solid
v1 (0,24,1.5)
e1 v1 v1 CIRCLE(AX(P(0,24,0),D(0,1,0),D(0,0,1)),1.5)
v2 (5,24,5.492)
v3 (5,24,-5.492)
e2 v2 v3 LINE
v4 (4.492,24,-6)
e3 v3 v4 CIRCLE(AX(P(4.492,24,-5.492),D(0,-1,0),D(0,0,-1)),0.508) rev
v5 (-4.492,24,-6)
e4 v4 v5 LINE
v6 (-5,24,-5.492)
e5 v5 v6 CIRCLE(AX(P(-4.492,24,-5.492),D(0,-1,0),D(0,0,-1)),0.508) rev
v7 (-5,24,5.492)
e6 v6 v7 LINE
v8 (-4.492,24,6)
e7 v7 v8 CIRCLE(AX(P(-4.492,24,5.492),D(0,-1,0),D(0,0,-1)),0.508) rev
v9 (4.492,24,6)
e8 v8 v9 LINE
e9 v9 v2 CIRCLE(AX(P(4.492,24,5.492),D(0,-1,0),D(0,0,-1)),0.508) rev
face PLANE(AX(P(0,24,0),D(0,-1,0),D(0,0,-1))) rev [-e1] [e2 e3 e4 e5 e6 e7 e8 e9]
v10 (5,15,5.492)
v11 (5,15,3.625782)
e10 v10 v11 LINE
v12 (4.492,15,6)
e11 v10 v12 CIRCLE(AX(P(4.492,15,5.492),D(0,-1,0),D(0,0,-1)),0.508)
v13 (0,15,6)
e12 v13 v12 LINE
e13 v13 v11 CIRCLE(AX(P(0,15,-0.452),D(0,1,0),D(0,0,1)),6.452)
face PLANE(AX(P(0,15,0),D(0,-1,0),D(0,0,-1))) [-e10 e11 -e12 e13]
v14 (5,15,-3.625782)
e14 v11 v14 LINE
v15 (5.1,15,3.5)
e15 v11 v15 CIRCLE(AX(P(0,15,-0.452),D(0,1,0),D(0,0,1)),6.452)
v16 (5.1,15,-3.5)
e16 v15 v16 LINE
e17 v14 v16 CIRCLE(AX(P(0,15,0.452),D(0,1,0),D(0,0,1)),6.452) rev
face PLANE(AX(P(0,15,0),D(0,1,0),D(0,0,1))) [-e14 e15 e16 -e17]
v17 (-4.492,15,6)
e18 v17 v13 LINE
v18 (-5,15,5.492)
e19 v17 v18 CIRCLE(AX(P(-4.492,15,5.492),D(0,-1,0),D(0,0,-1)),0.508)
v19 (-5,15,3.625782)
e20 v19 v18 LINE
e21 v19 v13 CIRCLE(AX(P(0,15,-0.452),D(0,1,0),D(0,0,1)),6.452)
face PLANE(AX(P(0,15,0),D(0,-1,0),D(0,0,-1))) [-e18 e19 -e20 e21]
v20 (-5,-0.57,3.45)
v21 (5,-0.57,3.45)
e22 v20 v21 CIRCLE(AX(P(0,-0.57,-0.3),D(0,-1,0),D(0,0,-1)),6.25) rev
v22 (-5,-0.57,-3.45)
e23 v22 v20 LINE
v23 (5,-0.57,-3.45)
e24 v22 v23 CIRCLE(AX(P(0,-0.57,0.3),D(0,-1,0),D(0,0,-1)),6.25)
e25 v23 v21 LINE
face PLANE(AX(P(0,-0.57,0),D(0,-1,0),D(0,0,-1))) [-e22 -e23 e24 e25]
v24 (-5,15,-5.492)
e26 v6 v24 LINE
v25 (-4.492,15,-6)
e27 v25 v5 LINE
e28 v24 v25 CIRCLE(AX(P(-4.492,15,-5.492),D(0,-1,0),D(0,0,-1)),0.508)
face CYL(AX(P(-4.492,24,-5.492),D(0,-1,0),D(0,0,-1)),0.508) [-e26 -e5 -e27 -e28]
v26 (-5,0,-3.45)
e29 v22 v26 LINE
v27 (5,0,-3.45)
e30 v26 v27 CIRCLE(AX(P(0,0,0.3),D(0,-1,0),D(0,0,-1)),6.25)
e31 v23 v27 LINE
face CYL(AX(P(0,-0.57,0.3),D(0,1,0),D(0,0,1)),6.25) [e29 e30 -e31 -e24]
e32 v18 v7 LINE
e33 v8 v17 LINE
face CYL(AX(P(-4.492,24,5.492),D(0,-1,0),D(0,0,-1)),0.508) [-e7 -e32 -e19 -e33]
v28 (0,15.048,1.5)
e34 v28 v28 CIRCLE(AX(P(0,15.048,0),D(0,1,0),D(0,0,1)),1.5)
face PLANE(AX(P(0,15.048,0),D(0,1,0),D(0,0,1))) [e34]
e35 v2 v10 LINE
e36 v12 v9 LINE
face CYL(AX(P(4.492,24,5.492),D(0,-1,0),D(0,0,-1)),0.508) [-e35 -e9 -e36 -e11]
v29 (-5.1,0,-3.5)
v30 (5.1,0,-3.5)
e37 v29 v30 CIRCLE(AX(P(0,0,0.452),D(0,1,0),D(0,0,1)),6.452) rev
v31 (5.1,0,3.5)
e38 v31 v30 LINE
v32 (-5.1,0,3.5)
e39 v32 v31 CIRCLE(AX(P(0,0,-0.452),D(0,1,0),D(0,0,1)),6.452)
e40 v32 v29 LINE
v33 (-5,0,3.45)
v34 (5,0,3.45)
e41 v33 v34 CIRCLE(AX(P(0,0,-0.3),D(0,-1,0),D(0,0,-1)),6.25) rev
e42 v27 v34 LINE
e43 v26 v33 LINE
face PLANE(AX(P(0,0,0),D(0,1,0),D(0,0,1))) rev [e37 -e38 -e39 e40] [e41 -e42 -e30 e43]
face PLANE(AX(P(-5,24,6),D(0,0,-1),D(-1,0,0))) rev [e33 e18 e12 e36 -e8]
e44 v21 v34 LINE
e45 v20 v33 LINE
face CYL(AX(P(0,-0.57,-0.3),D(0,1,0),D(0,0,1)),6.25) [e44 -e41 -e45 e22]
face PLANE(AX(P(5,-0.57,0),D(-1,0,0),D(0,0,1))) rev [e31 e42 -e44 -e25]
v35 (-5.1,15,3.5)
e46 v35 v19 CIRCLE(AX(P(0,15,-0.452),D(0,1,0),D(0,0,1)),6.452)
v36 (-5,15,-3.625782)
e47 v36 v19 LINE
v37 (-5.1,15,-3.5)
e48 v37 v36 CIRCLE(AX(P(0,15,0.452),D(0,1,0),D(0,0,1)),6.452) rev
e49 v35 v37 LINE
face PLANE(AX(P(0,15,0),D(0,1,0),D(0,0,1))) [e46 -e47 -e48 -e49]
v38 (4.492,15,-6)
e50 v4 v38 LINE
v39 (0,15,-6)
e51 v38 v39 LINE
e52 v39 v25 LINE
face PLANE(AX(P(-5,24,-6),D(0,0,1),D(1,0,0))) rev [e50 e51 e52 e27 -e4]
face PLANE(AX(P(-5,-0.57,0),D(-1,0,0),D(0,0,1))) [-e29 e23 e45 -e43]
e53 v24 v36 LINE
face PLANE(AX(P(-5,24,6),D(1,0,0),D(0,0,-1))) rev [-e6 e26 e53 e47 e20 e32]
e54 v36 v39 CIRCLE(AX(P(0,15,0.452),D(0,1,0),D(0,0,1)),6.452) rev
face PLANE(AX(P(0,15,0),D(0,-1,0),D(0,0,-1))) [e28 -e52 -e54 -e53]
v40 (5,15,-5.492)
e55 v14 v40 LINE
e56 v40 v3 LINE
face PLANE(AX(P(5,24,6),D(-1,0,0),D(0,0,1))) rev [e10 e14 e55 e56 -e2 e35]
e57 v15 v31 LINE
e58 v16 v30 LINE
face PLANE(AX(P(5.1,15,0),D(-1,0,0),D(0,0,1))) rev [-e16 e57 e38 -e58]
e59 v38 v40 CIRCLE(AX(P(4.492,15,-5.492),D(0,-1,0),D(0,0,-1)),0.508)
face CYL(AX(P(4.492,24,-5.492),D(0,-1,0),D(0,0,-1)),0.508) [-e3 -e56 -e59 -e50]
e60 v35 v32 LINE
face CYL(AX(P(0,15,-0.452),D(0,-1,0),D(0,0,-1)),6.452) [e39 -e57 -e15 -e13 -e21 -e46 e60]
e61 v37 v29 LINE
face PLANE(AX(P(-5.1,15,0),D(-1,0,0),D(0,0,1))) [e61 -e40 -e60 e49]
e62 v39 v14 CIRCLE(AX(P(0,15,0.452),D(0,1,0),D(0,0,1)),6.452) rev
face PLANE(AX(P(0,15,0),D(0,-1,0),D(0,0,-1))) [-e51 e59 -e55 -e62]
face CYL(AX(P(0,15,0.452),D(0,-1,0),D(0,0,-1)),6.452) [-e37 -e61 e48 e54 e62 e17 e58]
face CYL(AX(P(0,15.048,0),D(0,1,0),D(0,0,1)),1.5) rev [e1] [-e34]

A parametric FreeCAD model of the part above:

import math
import FreeCAD as App
import Part
import Sketcher
Q = App.Units.Quantity


def edges_at(feature, points):
    """Names of the edges that pass closest to the given points."""
    edges = feature.Shape.Edges
    near = lambda p: min(range(len(edges)), key=lambda i: edges[i].distToShape(Part.Vertex(*p))[0])
    return sorted({f"Edge{near(p) + 1}" for p in points})

doc = App.newDocument("Part")
params = doc.addObject("Spreadsheet::Sheet", "Params")
for row, (alias, value) in enumerate([
    ("sketch1_height", "7 mm"),
    ("pad1_length", "15 mm"),
    ("sketch2_width", "10 mm"),
    ("sketch2_height", "12 mm"),
    ("pad2_length", "9 mm"),
    ("fillet_radius", "0.508 mm"),
    ("sketch3_radius", "6.25 mm"),
    ("sketch3_height", "6.9 mm"),
    ("pad3_length", "0.57 mm"),
    ("sketch4_diameter", "3 mm"),
    ("pocket1_length", "8.952 mm"),
], start=1):
    params.set(f"A{row}", alias)
    params.set(f"B{row}", "=" + value)
    params.setAlias(f"B{row}", alias)

body = doc.addObject("PartDesign::Body", "Body")

# Sketch on XZ plane
sketch1 = body.newObject("Sketcher::SketchObject", "Sketch")
sketch1.AttachmentSupport = (doc.getObject("XZ_Plane"), [""])
sketch1.MapMode = "FlatFace"
sketch1.addGeometry([
    Part.ArcOfCircle(Part.Circle(App.Vector(0, -0.452, 0), App.Vector(0, 0, 1), 6.452), math.radians(37.772175), math.radians(142.227825)),
    Part.LineSegment(App.Vector(5.1, 3.5, 0), App.Vector(5.1, -3.5, 0)),
    Part.ArcOfCircle(Part.Circle(App.Vector(0, 0.452, 0), App.Vector(0, 0, 1), 6.452), math.radians(-142.227825), math.radians(-37.772175)),
    Part.LineSegment(App.Vector(-5.1, -3.5, 0), App.Vector(-5.1, 3.5, 0)),
], False)
sketch1.addConstraint([
    Sketcher.Constraint("Coincident", 0, 1, 1, 1),
    Sketcher.Constraint("Coincident", 1, 2, 2, 2),
    Sketcher.Constraint("Coincident", 2, 1, 3, 1),
    Sketcher.Constraint("Coincident", 3, 2, 0, 2),
    Sketcher.Constraint("Vertical", 1),
    Sketcher.Constraint("Vertical", 3),
    Sketcher.Constraint("Equal", 0, 2),
    Sketcher.Constraint("Symmetric", 0, 3, 2, 3, -1, 1),
    Sketcher.Constraint("Symmetric", 1, 2, 2, 1, -2),
    Sketcher.Constraint("DistanceY", 1, 2, 1, 1, Q("7 mm")),
    Sketcher.Constraint("Radius", 0, Q("6.452 mm")),
    Sketcher.Constraint("DistanceX", -1, 1, 0, 1, Q("5.1 mm")),
])
sketch1.setExpression("Constraints[9]", "Params.sketch1_height")
pad1 = body.newObject("PartDesign::Pad", "Pad")
pad1.Profile = sketch1
pad1.setExpression("Length", "Params.pad1_length")
pad1.Reversed = True

# Sketch on XZ plane
sketch2 = body.newObject("Sketcher::SketchObject", "Sketch001")
sketch2.AttachmentSupport = (doc.getObject("XZ_Plane"), [""])
sketch2.MapMode = "FlatFace"
sketch2.AttachmentOffset = App.Placement(App.Vector(0, 0, -15), App.Rotation())
sketch2.addGeometry([
    Part.LineSegment(App.Vector(-5, -6, 0), App.Vector(-5, 6, 0)),
    Part.LineSegment(App.Vector(-5, 6, 0), App.Vector(5, 6, 0)),
    Part.LineSegment(App.Vector(5, 6, 0), App.Vector(5, -6, 0)),
    Part.LineSegment(App.Vector(5, -6, 0), App.Vector(-5, -6, 0)),
], False)
sketch2.addConstraint([
    Sketcher.Constraint("Coincident", 0, 2, 1, 1),
    Sketcher.Constraint("Coincident", 1, 2, 2, 1),
    Sketcher.Constraint("Coincident", 2, 2, 3, 1),
    Sketcher.Constraint("Coincident", 3, 2, 0, 1),
    Sketcher.Constraint("Vertical", 0),
    Sketcher.Constraint("Horizontal", 1),
    Sketcher.Constraint("Vertical", 2),
    Sketcher.Constraint("Horizontal", 3),
    Sketcher.Constraint("Symmetric", 0, 2, 2, 2, -1, 1),
    Sketcher.Constraint("DistanceX", 1, 1, 1, 2, Q("10 mm")),
    Sketcher.Constraint("DistanceY", 0, 1, 0, 2, Q("12 mm")),
])
sketch2.setExpression("Constraints[9]", "Params.sketch2_width")
sketch2.setExpression("Constraints[10]", "Params.sketch2_height")
pad2 = body.newObject("PartDesign::Pad", "Pad001")
pad2.Profile = sketch2
pad2.setExpression("Length", "Params.pad2_length")
pad2.Reversed = True
doc.recompute()

fillet = body.newObject("PartDesign::Fillet", "Fillet")
fillet.Base = (pad2, edges_at(pad2, [
    (5, 19.5, 6),
    (5, 19.5, -6),
    (-5, 19.5, -6),
    (-5, 19.5, 6),
]))
fillet.setExpression("Radius", "Params.fillet_radius")

# Sketch on XZ plane
sketch3 = body.newObject("Sketcher::SketchObject", "Sketch002")
sketch3.AttachmentSupport = (doc.getObject("XZ_Plane"), [""])
sketch3.MapMode = "FlatFace"
sketch3.addGeometry([
    Part.LineSegment(App.Vector(-5, 3.45, 0), App.Vector(-5, -3.45, 0)),
    Part.ArcOfCircle(Part.Circle(App.Vector(0, 0.3, 0), App.Vector(0, 0, 1), 6.25), math.radians(-143.130102), math.radians(-36.869898)),
    Part.LineSegment(App.Vector(5, -3.45, 0), App.Vector(5, 3.45, 0)),
    Part.ArcOfCircle(Part.Circle(App.Vector(0, -0.3, 0), App.Vector(0, 0, 1), 6.25), math.radians(36.869898), math.radians(143.130102)),
], False)
sketch3.addConstraint([
    Sketcher.Constraint("Coincident", 0, 2, 1, 1),
    Sketcher.Constraint("Coincident", 1, 2, 2, 1),
    Sketcher.Constraint("Coincident", 2, 2, 3, 1),
    Sketcher.Constraint("Coincident", 3, 2, 0, 1),
    Sketcher.Constraint("Vertical", 0),
    Sketcher.Constraint("Vertical", 2),
    Sketcher.Constraint("Equal", 1, 3),
    Sketcher.Constraint("Symmetric", 1, 3, 3, 3, -1, 1),
    Sketcher.Constraint("Symmetric", 0, 2, 1, 2, -2),
    Sketcher.Constraint("Radius", 1, Q("6.25 mm")),
    Sketcher.Constraint("DistanceY", 0, 2, 0, 1, Q("6.9 mm")),
    Sketcher.Constraint("DistanceX", 0, 2, -1, 1, Q("5 mm")),
])
sketch3.setExpression("Constraints[9]", "Params.sketch3_radius")
sketch3.setExpression("Constraints[10]", "Params.sketch3_height")
pad3 = body.newObject("PartDesign::Pad", "Pad002")
pad3.Profile = sketch3
pad3.setExpression("Length", "Params.pad3_length")

# Sketch on XZ plane
sketch4 = body.newObject("Sketcher::SketchObject", "Sketch003")
sketch4.AttachmentSupport = (doc.getObject("XZ_Plane"), [""])
sketch4.MapMode = "FlatFace"
sketch4.AttachmentOffset = App.Placement(App.Vector(0, 0, -24), App.Rotation())
sketch4.addGeometry(Part.Circle(App.Vector(0, 0, 0), App.Vector(0, 0, 1), 1.5), False)
sketch4.addConstraint([
    Sketcher.Constraint("Coincident", 0, 3, -1, 1),
    Sketcher.Constraint("Diameter", 0, Q("3 mm")),
])
sketch4.setExpression("Constraints[1]", "Params.sketch4_diameter")
pocket1 = body.newObject("PartDesign::Pocket", "Pocket")
pocket1.Profile = sketch4
pocket1.setExpression("Length", "Params.pocket1_length")
pocket1.Reversed = True

doc.recompute()
